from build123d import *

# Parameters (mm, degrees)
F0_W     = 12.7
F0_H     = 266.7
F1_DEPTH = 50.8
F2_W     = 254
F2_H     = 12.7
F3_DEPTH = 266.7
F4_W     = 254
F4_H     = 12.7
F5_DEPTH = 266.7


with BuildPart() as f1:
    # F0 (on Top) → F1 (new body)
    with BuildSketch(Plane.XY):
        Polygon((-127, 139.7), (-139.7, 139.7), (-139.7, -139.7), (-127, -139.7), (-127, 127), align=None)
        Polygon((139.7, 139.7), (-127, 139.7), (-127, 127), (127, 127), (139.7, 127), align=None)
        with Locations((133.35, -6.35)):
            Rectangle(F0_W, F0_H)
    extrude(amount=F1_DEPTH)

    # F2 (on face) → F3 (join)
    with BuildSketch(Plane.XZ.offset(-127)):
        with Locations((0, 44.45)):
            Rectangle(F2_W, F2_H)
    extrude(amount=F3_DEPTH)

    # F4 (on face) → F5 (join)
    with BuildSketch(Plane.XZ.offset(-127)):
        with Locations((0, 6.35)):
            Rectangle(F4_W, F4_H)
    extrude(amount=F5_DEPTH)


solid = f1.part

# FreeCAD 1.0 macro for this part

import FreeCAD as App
import Part
import Sketcher

V = App.Vector
Q = App.Units.Quantity

doc = App.newDocument("Part")
body = doc.addObject("PartDesign::Body", "Body")

# Sketch on XY plane
sketch1 = body.newObject("Sketcher::SketchObject", "Sketch")
sketch1.AttachmentSupport = (doc.getObject("XY_Plane"), [""])
sketch1.MapMode = "FlatFace"
sketch1.addGeometry([
    Part.LineSegment(V(-140, 140, 0), V(-140, -140, 0)),  # 0
    Part.LineSegment(V(-140, -140, 0), V(-127, -140, 0)),  # 1
    Part.LineSegment(V(-127, -140, 0), V(-127, 127, 0)),  # 2
    Part.LineSegment(V(-127, 127, 0), V(127, 127, 0)),  # 3
    Part.LineSegment(V(127, 127, 0), V(127, -140, 0)),  # 4
    Part.LineSegment(V(127, -140, 0), V(140, -140, 0)),  # 5
    Part.LineSegment(V(140, -140, 0), V(140, 140, 0)),  # 6
    Part.LineSegment(V(140, 140, 0), V(-140, 140, 0)),  # 7
], False)
sketch1.addConstraint([
    Sketcher.Constraint("Coincident", 0, 2, 1, 1),
    Sketcher.Constraint("Coincident", 1, 2, 2, 1),
    Sketcher.Constraint("Coincident", 2, 2, 3, 1),
    Sketcher.Constraint("Coincident", 3, 2, 4, 1),
    Sketcher.Constraint("Coincident", 4, 2, 5, 1),
    Sketcher.Constraint("Coincident", 5, 2, 6, 1),
    Sketcher.Constraint("Coincident", 6, 2, 7, 1),
    Sketcher.Constraint("Coincident", 7, 2, 0, 1),
    Sketcher.Constraint("Vertical", 0),
    Sketcher.Constraint("Horizontal", 1),
    Sketcher.Constraint("Vertical", 2),
    Sketcher.Constraint("Horizontal", 3),
    Sketcher.Constraint("Vertical", 4),
    Sketcher.Constraint("Horizontal", 5),
    Sketcher.Constraint("Vertical", 6),
    Sketcher.Constraint("Horizontal", 7),
    Sketcher.Constraint("Symmetric", 0, 2, 6, 2, -1, 1),
    Sketcher.Constraint("Symmetric", 1, 2, 4, 2, -2),
    Sketcher.Constraint("Equal", 7, 0),
    Sketcher.Constraint("DistanceX", 3, 1, 3, 2, Q("10 in")),
    Sketcher.Constraint("DistanceX", 7, 2, 7, 1, Q("11 in")),
    Sketcher.Constraint("DistanceY", 2, 1, 2, 2, Q("10.5 in")),
])
pad1 = body.newObject("PartDesign::Pad", "Pad")
pad1.Profile = sketch1
pad1.Length = Q("2 in")

# Sketch on XZ plane
sketch2 = body.newObject("Sketcher::SketchObject", "Sketch001")
sketch2.AttachmentSupport = (doc.getObject("XZ_Plane"), [""])
sketch2.MapMode = "FlatFace"
sketch2.AttachmentOffset = App.Placement(V(0, 0, -5 * 25.4), App.Rotation())
sketch2.addGeometry([
    Part.LineSegment(V(-127, 51, 0), V(-127, 38, 0)),
    Part.LineSegment(V(-127, 38, 0), V(127, 38, 0)),
    Part.LineSegment(V(127, 38, 0), V(127, 51, 0)),
    Part.LineSegment(V(127, 51, 0), V(-127, 51, 0)),
], False)
sketch2.addConstraint([
    Sketcher.Constraint("Coincident", 0, 2, 1, 1),
    Sketcher.Constraint("Coincident", 1, 2, 2, 1),
    Sketcher.Constraint("Coincident", 2, 2, 3, 1),
    Sketcher.Constraint("Coincident", 3, 2, 0, 1),
    Sketcher.Constraint("Vertical", 0),
    Sketcher.Constraint("Horizontal", 1),
    Sketcher.Constraint("Vertical", 2),
    Sketcher.Constraint("Horizontal", 3),
    Sketcher.Constraint("DistanceX", 1, 1, 1, 2, Q("10 in")),
    Sketcher.Constraint("DistanceY", 0, 2, 0, 1, Q("0.5 in")),
    Sketcher.Constraint("DistanceX", 0, 2, -1, 1, Q("5 in")),
    Sketcher.Constraint("DistanceY", -1, 1, 2, 2, Q("2 in")),
])
pad2 = body.newObject("PartDesign::Pad", "Pad001")
pad2.Profile = sketch2
pad2.Length = Q("10.5 in")

# Sketch on XZ plane
sketch3 = body.newObject("Sketcher::SketchObject", "Sketch002")
sketch3.AttachmentSupport = (doc.getObject("XZ_Plane"), [""])
sketch3.MapMode = "FlatFace"
sketch3.AttachmentOffset = App.Placement(V(0, 0, -5 * 25.4), App.Rotation())
sketch3.addGeometry([
    Part.LineSegment(V(-127, 13, 0), V(-127, 0, 0)),
    Part.LineSegment(V(-127, 0, 0), V(127, 0, 0)),
    Part.LineSegment(V(127, 0, 0), V(127, 13, 0)),
    Part.LineSegment(V(127, 13, 0), V(-127, 13, 0)),
], False)
sketch3.addConstraint([
    Sketcher.Constraint("Coincident", 0, 2, 1, 1),
    Sketcher.Constraint("Coincident", 1, 2, 2, 1),
    Sketcher.Constraint("Coincident", 2, 2, 3, 1),
    Sketcher.Constraint("Coincident", 3, 2, 0, 1),
    Sketcher.Constraint("Vertical", 0),
    Sketcher.Constraint("Horizontal", 1),
    Sketcher.Constraint("Vertical", 2),
    Sketcher.Constraint("Horizontal", 3),
    Sketcher.Constraint("Symmetric", 0, 2, 1, 2, -1, 1),
    Sketcher.Constraint("DistanceX", 1, 1, 1, 2, Q("10 in")),
    Sketcher.Constraint("DistanceY", 0, 2, 0, 1, Q("0.5 in")),
])
pad3 = body.newObject("PartDesign::Pad", "Pad002")
pad3.Profile = sketch3
pad3.Length = Q("10.5 in")

doc.recompute()
